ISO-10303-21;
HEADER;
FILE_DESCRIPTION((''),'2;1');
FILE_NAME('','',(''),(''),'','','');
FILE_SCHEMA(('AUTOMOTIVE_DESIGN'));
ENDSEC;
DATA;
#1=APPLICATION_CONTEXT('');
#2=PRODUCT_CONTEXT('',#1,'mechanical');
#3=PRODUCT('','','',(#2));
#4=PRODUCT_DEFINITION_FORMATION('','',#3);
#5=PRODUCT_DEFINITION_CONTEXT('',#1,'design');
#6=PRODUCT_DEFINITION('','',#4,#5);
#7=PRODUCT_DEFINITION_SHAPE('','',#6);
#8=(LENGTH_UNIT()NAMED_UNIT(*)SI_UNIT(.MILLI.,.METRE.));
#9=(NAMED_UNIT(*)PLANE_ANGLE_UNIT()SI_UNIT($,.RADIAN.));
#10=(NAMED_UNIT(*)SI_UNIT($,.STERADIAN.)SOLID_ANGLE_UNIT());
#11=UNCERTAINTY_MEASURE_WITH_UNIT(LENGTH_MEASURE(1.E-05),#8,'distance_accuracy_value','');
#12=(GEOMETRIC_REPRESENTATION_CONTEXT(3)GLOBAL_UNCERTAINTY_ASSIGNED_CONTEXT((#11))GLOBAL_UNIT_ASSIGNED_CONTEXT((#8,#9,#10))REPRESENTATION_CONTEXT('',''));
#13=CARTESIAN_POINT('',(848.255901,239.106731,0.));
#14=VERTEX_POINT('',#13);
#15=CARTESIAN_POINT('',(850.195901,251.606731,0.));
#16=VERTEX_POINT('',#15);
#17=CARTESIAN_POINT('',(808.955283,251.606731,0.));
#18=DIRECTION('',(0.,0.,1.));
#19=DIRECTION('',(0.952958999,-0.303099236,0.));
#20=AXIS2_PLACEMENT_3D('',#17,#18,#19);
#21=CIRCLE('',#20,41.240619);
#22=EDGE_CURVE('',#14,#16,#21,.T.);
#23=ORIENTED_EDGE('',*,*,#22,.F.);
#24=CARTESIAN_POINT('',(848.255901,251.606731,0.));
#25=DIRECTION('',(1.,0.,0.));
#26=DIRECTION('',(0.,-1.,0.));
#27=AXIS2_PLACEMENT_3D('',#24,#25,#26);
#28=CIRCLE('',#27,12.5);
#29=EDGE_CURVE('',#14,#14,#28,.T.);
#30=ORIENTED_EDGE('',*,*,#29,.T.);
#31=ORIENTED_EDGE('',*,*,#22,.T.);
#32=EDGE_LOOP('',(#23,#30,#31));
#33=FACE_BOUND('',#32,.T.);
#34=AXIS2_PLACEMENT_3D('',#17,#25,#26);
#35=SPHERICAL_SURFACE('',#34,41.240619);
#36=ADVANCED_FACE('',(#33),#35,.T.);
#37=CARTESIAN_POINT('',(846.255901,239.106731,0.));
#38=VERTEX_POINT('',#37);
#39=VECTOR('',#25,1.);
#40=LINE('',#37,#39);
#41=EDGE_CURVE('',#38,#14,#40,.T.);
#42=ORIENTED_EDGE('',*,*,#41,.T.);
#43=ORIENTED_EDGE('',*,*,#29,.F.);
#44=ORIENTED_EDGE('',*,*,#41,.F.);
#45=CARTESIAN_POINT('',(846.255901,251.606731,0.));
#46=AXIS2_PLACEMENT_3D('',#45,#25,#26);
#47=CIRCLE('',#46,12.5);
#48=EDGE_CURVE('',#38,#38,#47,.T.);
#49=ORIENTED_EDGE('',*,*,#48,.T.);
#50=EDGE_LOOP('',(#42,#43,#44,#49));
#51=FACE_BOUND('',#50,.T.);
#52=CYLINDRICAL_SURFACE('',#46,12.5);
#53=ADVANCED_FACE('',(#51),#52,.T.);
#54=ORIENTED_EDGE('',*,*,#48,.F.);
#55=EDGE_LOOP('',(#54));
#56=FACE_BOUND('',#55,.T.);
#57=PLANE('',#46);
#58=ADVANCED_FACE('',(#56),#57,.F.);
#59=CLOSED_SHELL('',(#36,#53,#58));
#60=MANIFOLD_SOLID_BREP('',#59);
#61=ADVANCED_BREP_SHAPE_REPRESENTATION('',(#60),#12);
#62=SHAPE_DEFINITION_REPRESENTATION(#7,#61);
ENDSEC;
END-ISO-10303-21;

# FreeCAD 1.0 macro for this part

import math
import FreeCAD as App
import Part
import Sketcher
from FreeCAD import Vector
Q = App.Units.Quantity

doc = App.newDocument("Part")
body = doc.addObject("PartDesign::Body", "Body")

sketch1 = doc.addObject("Sketcher::SketchObject", "Sketch")
body.addObject(sketch1)
sketch1.AttachmentSupport = (doc.XY_Plane, [""])
sketch1.MapMode = "FlatFace"
sketch1.addGeometry([
    Part.LineSegment(Vector(846.255901, 251.606731, 0), Vector(850.195901, 251.606731, 0)),
    Part.ArcOfCircle(Part.Circle(Vector(808.955283, 251.606731, 0), Vector(0, 0, 1), 41.240619), math.radians(0), math.radians(17.643846)),
    Part.LineSegment(Vector(848.255901, 264.106731, 0), Vector(846.255901, 264.106731, 0)),
    Part.LineSegment(Vector(846.255901, 264.106731, 0), Vector(846.255901, 251.606731, 0)),
], False)
sketch1.addGeometry(Part.LineSegment(Vector(808.955283, 251.606731, 0), Vector(850.195901, 251.606731, 0)), True)
sketch1.addConstraint([
    Sketcher.Constraint("Coincident", 0, 2, 1, 1),
    Sketcher.Constraint("Coincident", 1, 2, 2, 1),
    Sketcher.Constraint("Coincident", 2, 2, 3, 1),
    Sketcher.Constraint("Coincident", 3, 2, 0, 1),
    Sketcher.Constraint("Horizontal", 0),
    Sketcher.Constraint("Horizontal", 2),
    Sketcher.Constraint("Vertical", 3),
    Sketcher.Constraint("Horizontal", 4),
    Sketcher.Constraint("Coincident", 4, 1, 1, 3),
    Sketcher.Constraint("Coincident", 4, 2, 0, 2),
    Sketcher.Constraint("DistanceX", 2, 2, 2, 1, Q("2 mm")),
    Sketcher.Constraint("DistanceY", 3, 2, 3, 1, Q("12.5 mm")),
    Sketcher.Constraint("DistanceX", 0, 1, 0, 2, Q("3.94 mm")),
    Sketcher.Constraint("DistanceX", -1, 1, 0, 2, Q("850.195901 mm")),
    Sketcher.Constraint("DistanceY", -1, 1, 1, 3, Q("251.606731 mm")),
])
revolution = doc.addObject("PartDesign::Revolution", "Revolution")
body.addObject(revolution)
revolution.Profile = sketch1
revolution.ReferenceAxis = (sketch1, ["Axis0"])
revolution.Angle = 360

doc.recompute()
